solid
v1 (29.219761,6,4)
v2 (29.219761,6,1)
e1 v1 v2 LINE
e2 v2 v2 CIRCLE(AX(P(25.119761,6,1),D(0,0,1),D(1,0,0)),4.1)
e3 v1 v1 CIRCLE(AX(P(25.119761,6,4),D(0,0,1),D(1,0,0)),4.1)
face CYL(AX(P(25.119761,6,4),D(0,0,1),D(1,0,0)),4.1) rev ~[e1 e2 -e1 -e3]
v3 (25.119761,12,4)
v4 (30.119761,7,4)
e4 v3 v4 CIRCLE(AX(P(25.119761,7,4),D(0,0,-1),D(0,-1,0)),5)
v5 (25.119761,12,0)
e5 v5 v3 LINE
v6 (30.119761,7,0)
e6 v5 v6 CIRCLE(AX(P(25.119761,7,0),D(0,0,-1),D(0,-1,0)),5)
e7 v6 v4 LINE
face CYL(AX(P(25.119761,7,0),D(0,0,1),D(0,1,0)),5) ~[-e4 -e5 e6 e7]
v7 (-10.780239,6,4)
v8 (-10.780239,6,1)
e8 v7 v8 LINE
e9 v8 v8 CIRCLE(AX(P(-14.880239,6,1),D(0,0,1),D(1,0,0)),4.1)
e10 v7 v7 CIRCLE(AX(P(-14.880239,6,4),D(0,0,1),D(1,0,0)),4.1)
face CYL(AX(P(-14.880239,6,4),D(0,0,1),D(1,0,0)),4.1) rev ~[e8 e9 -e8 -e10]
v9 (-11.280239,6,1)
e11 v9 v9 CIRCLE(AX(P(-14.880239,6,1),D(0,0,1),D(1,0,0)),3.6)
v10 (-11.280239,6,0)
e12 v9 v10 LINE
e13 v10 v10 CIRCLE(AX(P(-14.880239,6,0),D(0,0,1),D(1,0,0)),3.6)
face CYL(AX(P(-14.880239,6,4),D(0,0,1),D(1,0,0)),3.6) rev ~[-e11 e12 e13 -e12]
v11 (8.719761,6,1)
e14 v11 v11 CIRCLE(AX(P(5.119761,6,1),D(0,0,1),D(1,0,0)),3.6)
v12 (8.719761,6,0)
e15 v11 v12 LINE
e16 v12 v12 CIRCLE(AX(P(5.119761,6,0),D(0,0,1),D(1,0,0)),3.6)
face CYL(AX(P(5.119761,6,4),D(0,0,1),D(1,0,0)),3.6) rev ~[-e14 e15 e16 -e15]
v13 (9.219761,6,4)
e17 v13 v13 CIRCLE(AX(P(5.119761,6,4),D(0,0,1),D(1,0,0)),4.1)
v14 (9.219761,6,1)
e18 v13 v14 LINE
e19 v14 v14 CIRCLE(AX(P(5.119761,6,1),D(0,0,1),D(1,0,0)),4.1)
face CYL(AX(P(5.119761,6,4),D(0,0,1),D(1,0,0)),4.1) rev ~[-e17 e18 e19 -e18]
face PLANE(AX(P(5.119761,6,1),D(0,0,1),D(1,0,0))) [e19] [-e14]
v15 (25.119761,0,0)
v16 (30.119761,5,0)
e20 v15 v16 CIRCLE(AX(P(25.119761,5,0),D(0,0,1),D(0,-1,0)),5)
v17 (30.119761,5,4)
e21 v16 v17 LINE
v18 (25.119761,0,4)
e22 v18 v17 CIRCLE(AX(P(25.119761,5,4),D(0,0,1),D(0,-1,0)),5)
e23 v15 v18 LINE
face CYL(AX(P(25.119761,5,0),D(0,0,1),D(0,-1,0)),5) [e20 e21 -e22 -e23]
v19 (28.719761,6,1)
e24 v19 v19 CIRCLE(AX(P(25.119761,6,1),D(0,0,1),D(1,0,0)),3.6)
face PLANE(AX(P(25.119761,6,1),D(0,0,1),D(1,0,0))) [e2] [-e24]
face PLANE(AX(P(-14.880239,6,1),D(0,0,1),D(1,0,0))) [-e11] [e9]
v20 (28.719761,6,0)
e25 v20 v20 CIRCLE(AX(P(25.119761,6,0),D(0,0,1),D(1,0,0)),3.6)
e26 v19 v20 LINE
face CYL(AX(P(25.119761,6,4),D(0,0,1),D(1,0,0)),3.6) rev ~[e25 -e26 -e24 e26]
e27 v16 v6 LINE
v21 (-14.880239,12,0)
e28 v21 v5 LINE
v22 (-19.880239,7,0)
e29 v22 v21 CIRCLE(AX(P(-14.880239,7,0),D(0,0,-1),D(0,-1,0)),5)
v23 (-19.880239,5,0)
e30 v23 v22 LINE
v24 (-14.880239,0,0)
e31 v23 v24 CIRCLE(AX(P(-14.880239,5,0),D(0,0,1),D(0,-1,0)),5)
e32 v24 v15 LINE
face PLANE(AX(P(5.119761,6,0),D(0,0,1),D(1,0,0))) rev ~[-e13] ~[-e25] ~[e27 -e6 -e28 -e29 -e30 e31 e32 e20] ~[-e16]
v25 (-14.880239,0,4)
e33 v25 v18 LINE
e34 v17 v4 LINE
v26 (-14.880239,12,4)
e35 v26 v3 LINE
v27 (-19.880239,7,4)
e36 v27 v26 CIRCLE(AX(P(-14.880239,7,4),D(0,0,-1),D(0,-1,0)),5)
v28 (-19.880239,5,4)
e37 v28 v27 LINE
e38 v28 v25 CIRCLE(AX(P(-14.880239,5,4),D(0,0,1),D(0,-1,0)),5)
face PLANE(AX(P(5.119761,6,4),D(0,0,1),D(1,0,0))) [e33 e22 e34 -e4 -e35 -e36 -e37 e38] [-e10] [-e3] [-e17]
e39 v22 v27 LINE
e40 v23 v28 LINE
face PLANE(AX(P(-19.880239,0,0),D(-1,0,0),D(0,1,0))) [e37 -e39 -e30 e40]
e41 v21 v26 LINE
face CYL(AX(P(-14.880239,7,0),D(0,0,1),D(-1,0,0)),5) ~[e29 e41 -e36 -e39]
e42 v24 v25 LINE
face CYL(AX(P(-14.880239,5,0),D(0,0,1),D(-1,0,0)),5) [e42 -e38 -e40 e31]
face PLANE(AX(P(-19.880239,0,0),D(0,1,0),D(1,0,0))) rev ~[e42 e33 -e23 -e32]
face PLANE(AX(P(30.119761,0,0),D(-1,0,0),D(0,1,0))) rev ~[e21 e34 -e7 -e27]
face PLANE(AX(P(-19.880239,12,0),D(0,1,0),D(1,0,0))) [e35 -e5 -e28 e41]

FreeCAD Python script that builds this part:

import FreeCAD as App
import Part
import Sketcher
Q = App.Units.Quantity


def edges_at(feature, points):
    """Names of the edges that pass closest to the given points."""
    edges = feature.Shape.Edges
    near = lambda p: min(range(len(edges)), key=lambda i: edges[i].distToShape(Part.Vertex(*p))[0])
    return sorted({f"Edge{near(p) + 1}" for p in points})

doc = App.newDocument("Part")
body = doc.addObject("PartDesign::Body", "Body")

sketch1 = body.newObject("Sketcher::SketchObject", "Sketch")
sketch1.AttachmentSupport = (doc.getObject("XY_Plane"), [""])
sketch1.MapMode = "FlatFace"
sketch1.addGeometry(Part.LineSegment(App.Vector(-20, 12, 0), App.Vector(-20, 0, 0)), False)
sketch1.addGeometry(Part.LineSegment(App.Vector(-20, 0, 0), App.Vector(30, 0, 0)), False)
sketch1.addGeometry(Part.LineSegment(App.Vector(30, 0, 0), App.Vector(30, 12, 0)), False)
sketch1.addGeometry(Part.LineSegment(App.Vector(30, 12, 0), App.Vector(-20, 12, 0)), False)
sketch1.addConstraint(Sketcher.Constraint("Coincident", 0, 2, 1, 1))
sketch1.addConstraint(Sketcher.Constraint("Coincident", 1, 2, 2, 1))
sketch1.addConstraint(Sketcher.Constraint("Coincident", 2, 2, 3, 1))
sketch1.addConstraint(Sketcher.Constraint("Coincident", 3, 2, 0, 1))
sketch1.addConstraint(Sketcher.Constraint("Vertical", 0))
sketch1.addConstraint(Sketcher.Constraint("Horizontal", 1))
sketch1.addConstraint(Sketcher.Constraint("Vertical", 2))
sketch1.addConstraint(Sketcher.Constraint("Horizontal", 3))
sketch1.addConstraint(Sketcher.Constraint("PointOnObject", 0, 2, -1))
sketch1.addConstraint(Sketcher.Constraint("DistanceX", 1, 1, 1, 2, Q("50 mm")))
sketch1.addConstraint(Sketcher.Constraint("DistanceY", 0, 2, 0, 1, Q("12 mm")))
sketch1.addConstraint(Sketcher.Constraint("DistanceX", 0, 2, -1, 1, Q("19.880239 mm")))
pad1 = body.newObject("PartDesign::Pad", "Pad")
pad1.Profile = sketch1
pad1.Length = 4

sketch2 = body.newObject("Sketcher::SketchObject", "Sketch001")
sketch2.AttachmentSupport = (doc.getObject("XY_Plane"), [""])
sketch2.MapMode = "FlatFace"
sketch2.AttachmentOffset = App.Placement(App.Vector(0, 0, 4), App.Rotation())
sketch2.addGeometry(Part.Circle(App.Vector(-14.9, 6, 0), App.Vector(0, 0, 1), 4.1), False)
sketch2.addGeometry(Part.Circle(App.Vector(-14.9, 6, 0), App.Vector(0, 0, 1), 3.6), False)
sketch2.addGeometry(Part.Circle(App.Vector(5.1, 6, 0), App.Vector(0, 0, 1), 4.1), False)
sketch2.addGeometry(Part.Circle(App.Vector(5.1, 6, 0), App.Vector(0, 0, 1), 3.6), False)
sketch2.addGeometry(Part.Circle(App.Vector(25.1, 6, 0), App.Vector(0, 0, 1), 4.1), False)
sketch2.addGeometry(Part.Circle(App.Vector(25.1, 6, 0), App.Vector(0, 0, 1), 3.6), False)
sketch2.addConstraint(Sketcher.Constraint("Coincident", 1, 3, 0, 3))
sketch2.addConstraint(Sketcher.Constraint("Coincident", 3, 3, 2, 3))
sketch2.addConstraint(Sketcher.Constraint("Coincident", 5, 3, 4, 3))
sketch2.addConstraint(Sketcher.Constraint("Equal", 0, 2))
sketch2.addConstraint(Sketcher.Constraint("Equal", 1, 3))
sketch2.addConstraint(Sketcher.Constraint("Equal", 2, 4))
sketch2.addConstraint(Sketcher.Constraint("Equal", 3, 5))
sketch2.addConstraint(Sketcher.Constraint("Horizontal", 1, 3, 2, 3))
sketch2.addConstraint(Sketcher.Constraint("Horizontal", 3, 3, 4, 3))
sketch2.addConstraint(Sketcher.Constraint("Diameter", 0, Q("8.2 mm")))
sketch2.addConstraint(Sketcher.Constraint("Diameter", 1, Q("7.2 mm")))
sketch2.addConstraint(Sketcher.Constraint("DistanceY", -1, 1, 0, 3, Q("6 mm")))
sketch2.addConstraint(Sketcher.Constraint("DistanceX", 0, 3, 2, 3, Q("20 mm")))
sketch2.addConstraint(Sketcher.Constraint("DistanceX", 2, 3, 4, 3, Q("20 mm")))
sketch2.addConstraint(Sketcher.Constraint("DistanceX", 0, 3, -1, 1, Q("14.880239 mm")))
pocket1 = body.newObject("PartDesign::Pocket", "Pocket")
pocket1.Profile = sketch2
pocket1.Length = 3

sketch3 = body.newObject("Sketcher::SketchObject", "Sketch002")
sketch3.AttachmentSupport = (doc.getObject("XY_Plane"), [""])
sketch3.MapMode = "FlatFace"
sketch3.AttachmentOffset = App.Placement(App.Vector(0, 0, 4), App.Rotation())
sketch3.addGeometry(Part.Circle(App.Vector(-14.9, 6, 0), App.Vector(0, 0, 1), 3.6), False)
sketch3.addGeometry(Part.Circle(App.Vector(5.1, 6, 0), App.Vector(0, 0, 1), 3.6), False)
sketch3.addGeometry(Part.Circle(App.Vector(25.1, 6, 0), App.Vector(0, 0, 1), 3.6), False)
sketch3.addConstraint(Sketcher.Constraint("Equal", 0, 1))
sketch3.addConstraint(Sketcher.Constraint("Equal", 1, 2))
sketch3.addConstraint(Sketcher.Constraint("Horizontal", 0, 3, 1, 3))
sketch3.addConstraint(Sketcher.Constraint("Horizontal", 1, 3, 2, 3))
sketch3.addConstraint(Sketcher.Constraint("Diameter", 0, Q("7.2 mm")))
sketch3.addConstraint(Sketcher.Constraint("DistanceY", -1, 1, 0, 3, Q("6 mm")))
sketch3.addConstraint(Sketcher.Constraint("DistanceX", 0, 3, 1, 3, Q("20 mm")))
sketch3.addConstraint(Sketcher.Constraint("DistanceX", 1, 3, 2, 3, Q("20 mm")))
sketch3.addConstraint(Sketcher.Constraint("DistanceX", 0, 3, -1, 1, Q("14.880239 mm")))
pocket2 = body.newObject("PartDesign::Pocket", "Pocket001")
pocket2.Profile = sketch3
pocket2.Length = 25
doc.recompute()

fillet = body.newObject("PartDesign::Fillet", "Fillet")
fillet.Base = (pocket2, edges_at(pocket2, [
    (30.12, 12, 2),
    (30.12, 0, 2),
    (-19.88, 12, 2),
    (-19.88, 0, 2),
]))
fillet.Radius = 5

doc.recompute()
